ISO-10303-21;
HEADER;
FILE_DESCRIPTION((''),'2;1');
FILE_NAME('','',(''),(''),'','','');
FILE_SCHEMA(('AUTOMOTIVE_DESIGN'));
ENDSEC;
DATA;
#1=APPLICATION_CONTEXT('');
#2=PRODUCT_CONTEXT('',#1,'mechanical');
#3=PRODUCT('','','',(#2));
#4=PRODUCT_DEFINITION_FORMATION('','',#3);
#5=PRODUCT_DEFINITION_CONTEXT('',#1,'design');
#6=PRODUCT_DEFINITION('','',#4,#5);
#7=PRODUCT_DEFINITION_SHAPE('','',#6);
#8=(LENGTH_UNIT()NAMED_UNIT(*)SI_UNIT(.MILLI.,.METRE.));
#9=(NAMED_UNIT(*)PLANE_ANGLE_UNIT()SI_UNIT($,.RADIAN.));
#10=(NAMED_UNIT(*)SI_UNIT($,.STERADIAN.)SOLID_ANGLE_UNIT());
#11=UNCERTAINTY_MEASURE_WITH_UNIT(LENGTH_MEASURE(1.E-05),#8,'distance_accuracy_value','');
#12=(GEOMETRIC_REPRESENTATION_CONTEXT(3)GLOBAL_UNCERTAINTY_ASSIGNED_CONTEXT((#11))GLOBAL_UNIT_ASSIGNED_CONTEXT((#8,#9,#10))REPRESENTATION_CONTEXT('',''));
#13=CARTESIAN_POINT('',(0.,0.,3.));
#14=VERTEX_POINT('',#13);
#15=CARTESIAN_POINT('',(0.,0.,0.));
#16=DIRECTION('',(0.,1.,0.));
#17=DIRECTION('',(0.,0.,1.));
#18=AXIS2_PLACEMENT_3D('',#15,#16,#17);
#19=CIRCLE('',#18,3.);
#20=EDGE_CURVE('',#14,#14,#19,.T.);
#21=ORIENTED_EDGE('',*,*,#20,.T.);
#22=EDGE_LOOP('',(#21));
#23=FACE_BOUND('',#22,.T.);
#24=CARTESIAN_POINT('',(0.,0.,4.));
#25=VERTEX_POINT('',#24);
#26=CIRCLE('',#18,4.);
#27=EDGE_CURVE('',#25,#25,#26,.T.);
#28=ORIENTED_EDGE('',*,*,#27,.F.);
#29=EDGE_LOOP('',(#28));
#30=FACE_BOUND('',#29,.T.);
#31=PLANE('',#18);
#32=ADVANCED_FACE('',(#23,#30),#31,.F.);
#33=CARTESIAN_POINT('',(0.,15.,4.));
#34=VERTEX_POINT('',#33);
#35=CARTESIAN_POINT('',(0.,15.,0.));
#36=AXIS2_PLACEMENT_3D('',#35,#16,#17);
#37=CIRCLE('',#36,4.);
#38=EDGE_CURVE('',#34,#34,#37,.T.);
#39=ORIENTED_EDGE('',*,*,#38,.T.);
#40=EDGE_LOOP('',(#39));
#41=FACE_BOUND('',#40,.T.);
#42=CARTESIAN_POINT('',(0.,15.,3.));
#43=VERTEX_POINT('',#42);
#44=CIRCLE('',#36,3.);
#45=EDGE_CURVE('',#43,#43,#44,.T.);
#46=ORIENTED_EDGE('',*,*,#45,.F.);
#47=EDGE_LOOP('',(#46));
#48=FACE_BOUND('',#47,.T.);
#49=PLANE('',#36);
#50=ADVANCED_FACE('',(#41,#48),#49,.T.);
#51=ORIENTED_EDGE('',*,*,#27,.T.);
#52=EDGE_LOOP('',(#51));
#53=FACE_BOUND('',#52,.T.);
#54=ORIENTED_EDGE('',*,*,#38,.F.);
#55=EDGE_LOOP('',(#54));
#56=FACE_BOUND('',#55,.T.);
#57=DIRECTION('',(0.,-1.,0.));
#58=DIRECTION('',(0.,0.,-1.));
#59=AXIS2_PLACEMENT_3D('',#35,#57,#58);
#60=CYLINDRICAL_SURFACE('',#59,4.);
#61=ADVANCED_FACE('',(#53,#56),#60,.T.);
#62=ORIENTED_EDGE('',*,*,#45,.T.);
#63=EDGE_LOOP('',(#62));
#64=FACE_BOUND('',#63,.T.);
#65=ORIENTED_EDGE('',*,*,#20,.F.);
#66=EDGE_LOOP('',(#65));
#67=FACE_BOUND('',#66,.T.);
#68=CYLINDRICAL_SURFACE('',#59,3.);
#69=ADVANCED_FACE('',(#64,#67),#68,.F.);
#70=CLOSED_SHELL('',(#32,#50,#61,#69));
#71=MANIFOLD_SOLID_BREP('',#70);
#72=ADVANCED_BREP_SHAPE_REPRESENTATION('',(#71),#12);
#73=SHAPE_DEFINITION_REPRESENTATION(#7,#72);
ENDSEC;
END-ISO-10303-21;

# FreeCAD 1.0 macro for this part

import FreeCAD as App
import Part
import Sketcher

doc = App.newDocument("Part")
body = doc.addObject("PartDesign::Body", "Body")

sketch1 = doc.addObject("Sketcher::SketchObject", "Sketch")
body.addObject(sketch1)
sketch1.AttachmentSupport = (doc.XZ_Plane, [""])
sketch1.MapMode = "FlatFace"
sketch1.addGeometry([
    Part.Circle(App.Vector(0, 0, 0), App.Vector(0, 0, 1), 4),
    Part.Circle(App.Vector(0, 0, 0), App.Vector(0, 0, 1), 3),
], False)
sketch1.addConstraint([
    Sketcher.Constraint("Coincident", 0, 3, -1, 1),
    Sketcher.Constraint("Coincident", 1, 3, -1, 1),
    Sketcher.Constraint("Diameter", 0, 8.0),
    Sketcher.Constraint("Diameter", 1, 6.0),
])
pad1 = doc.addObject("PartDesign::Pad", "Pad")
body.addObject(pad1)
pad1.Profile = sketch1
pad1.Length = 15
pad1.Reversed = True

doc.recompute()
